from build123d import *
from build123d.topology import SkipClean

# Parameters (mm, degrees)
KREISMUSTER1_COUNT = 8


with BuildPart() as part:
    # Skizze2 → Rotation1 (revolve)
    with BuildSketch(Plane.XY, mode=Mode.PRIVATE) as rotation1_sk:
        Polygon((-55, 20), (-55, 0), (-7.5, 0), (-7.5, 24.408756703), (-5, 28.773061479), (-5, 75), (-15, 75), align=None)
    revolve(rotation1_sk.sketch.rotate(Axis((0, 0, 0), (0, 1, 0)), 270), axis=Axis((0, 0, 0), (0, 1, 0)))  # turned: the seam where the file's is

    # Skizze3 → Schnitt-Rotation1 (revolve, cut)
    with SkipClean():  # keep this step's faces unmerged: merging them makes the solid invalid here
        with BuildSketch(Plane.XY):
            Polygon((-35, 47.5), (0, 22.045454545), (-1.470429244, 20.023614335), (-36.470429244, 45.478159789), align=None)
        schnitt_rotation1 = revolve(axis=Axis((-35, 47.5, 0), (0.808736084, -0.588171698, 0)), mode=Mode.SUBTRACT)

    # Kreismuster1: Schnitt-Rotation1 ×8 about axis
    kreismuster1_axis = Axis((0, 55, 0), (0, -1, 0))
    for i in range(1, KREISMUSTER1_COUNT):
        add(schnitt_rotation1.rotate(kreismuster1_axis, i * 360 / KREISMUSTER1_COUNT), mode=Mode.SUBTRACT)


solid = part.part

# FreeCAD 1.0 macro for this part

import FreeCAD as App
import Part
import Sketcher

doc = App.newDocument("Part")
body = doc.addObject("PartDesign::Body", "Body")

sketch1 = body.newObject("Sketcher::SketchObject", "Sketch")
sketch1.AttachmentSupport = (doc.getObject("XY_Plane"), [""])
sketch1.MapMode = "FlatFace"
sketch1.addGeometry([
    Part.LineSegment(App.Vector(-55, 20, 0), App.Vector(-55, 0, 0)),
    Part.LineSegment(App.Vector(-55, 0, 0), App.Vector(-8, 0, 0)),
    Part.LineSegment(App.Vector(-8, 0, 0), App.Vector(-8, 24, 0)),
    Part.LineSegment(App.Vector(-8, 24, 0), App.Vector(-5, 29, 0)),
    Part.LineSegment(App.Vector(-5, 29, 0), App.Vector(-5, 75, 0)),
    Part.LineSegment(App.Vector(-5, 75, 0), App.Vector(-15, 75, 0)),
    Part.LineSegment(App.Vector(-15, 75, 0), App.Vector(-55, 20, 0)),
], False)
sketch1.addConstraint([
    Sketcher.Constraint("Coincident", 0, 2, 1, 1),
    Sketcher.Constraint("Coincident", 1, 2, 2, 1),
    Sketcher.Constraint("Coincident", 2, 2, 3, 1),
    Sketcher.Constraint("Coincident", 3, 2, 4, 1),
    Sketcher.Constraint("Coincident", 4, 2, 5, 1),
    Sketcher.Constraint("Coincident", 5, 2, 6, 1),
    Sketcher.Constraint("Coincident", 6, 2, 0, 1),
    Sketcher.Constraint("Vertical", 0),
    Sketcher.Constraint("Horizontal", 1),
    Sketcher.Constraint("Vertical", 2),
    Sketcher.Constraint("Vertical", 4),
    Sketcher.Constraint("Horizontal", 5),
    Sketcher.Constraint("PointOnObject", 0, 2, -1),
    Sketcher.Constraint("DistanceX", 5, 2, 5, 1, 10.0),
    Sketcher.Constraint("DistanceY", 0, 2, 0, 1, 20.0),
    Sketcher.Constraint("DistanceX", 1, 1, 1, 2, 47.5),
    Sketcher.Constraint("DistanceX", 0, 2, -1, 1, 55.0),
    Sketcher.Constraint("DistanceX", 3, 2, -1, 1, 5.0),
    Sketcher.Constraint("DistanceY", -1, 1, 4, 2, 75.0),
    Sketcher.Constraint("DistanceY", 4, 1, 4, 2, 46.226939),
    Sketcher.Constraint("DistanceY", 2, 1, 2, 2, 24.408757),
])
revolution = body.newObject("PartDesign::Revolution", "Revolution")
revolution.Profile = sketch1
revolution.ReferenceAxis = (sketch1, ["V_Axis"])
revolution.Angle = 360

sketch2 = body.newObject("Sketcher::SketchObject", "Sketch001")
sketch2.AttachmentSupport = (doc.getObject("XY_Plane"), [""])
sketch2.MapMode = "FlatFace"
sketch2.addGeometry([
    Part.LineSegment(App.Vector(0, 22, 0), App.Vector(-35, 47.5, 0)),
    Part.LineSegment(App.Vector(-35, 47.5, 0), App.Vector(-36.5, 45.5, 0)),
    Part.LineSegment(App.Vector(-36.5, 45.5, 0), App.Vector(-1.5, 20, 0)),
    Part.LineSegment(App.Vector(-1.5, 20, 0), App.Vector(0, 22, 0)),
], False)
sketch2.addGeometry(Part.LineSegment(App.Vector(-35, 47.5, 0), App.Vector(0, 22, 0)), True)
sketch2.addConstraint([
    Sketcher.Constraint("Coincident", 0, 2, 1, 1),
    Sketcher.Constraint("Coincident", 1, 2, 2, 1),
    Sketcher.Constraint("Coincident", 2, 2, 3, 1),
    Sketcher.Constraint("Coincident", 3, 2, 0, 1),
    Sketcher.Constraint("Coincident", 4, 1, 0, 2),
    Sketcher.Constraint("Coincident", 4, 2, 3, 2),
    Sketcher.Constraint("PointOnObject", 3, 2, -2),
    Sketcher.Constraint("Perpendicular", 0, 1),
    Sketcher.Constraint("Perpendicular", 1, 2),
    Sketcher.Constraint("Perpendicular", 2, 3),
    Sketcher.Constraint("DistanceX", 0, 2, -1, 1, 35.0),
    Sketcher.Constraint("Distance", 1, 2.5),
    Sketcher.Constraint("DistanceY", -1, 1, 0, 2, 47.5),
    Sketcher.Constraint("DistanceX", 1, 2, -1, 1, 36.470429),
])
groove = body.newObject("PartDesign::Groove", "Groove")
groove.Profile = sketch2
groove.ReferenceAxis = (sketch2, ["Axis0"])
groove.Angle = 360
doc.recompute()

polarpattern = body.newObject("PartDesign::PolarPattern", "PolarPattern")
polarpattern.Originals = [groove]
polarpattern.Axis = (doc.getObject("Y_Axis"), [""])
polarpattern.Angle = 360
polarpattern.Occurrences = 8
body.Tip = polarpattern

doc.recompute()
